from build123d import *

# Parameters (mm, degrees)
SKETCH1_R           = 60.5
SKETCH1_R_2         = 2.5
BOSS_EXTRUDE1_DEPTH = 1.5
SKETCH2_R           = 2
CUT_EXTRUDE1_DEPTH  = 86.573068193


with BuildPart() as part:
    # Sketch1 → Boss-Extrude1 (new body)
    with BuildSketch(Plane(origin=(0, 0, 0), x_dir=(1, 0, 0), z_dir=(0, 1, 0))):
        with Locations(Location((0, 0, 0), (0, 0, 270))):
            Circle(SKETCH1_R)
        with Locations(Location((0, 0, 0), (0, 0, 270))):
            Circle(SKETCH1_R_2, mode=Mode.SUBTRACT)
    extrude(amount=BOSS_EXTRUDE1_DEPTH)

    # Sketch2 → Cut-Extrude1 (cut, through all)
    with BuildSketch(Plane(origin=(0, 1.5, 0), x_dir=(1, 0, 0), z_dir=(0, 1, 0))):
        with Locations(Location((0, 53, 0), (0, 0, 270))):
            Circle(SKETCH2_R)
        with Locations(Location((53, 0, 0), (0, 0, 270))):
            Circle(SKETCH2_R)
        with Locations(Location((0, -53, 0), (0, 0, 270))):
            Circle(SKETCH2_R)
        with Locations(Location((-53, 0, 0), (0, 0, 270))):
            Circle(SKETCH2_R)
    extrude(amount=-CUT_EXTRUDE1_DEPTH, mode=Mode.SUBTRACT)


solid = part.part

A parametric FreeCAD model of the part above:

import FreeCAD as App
import Part
import Sketcher

doc = App.newDocument("Part")
body = doc.addObject("PartDesign::Body", "Body")

# Sketch on XZ plane
sketch1 = body.newObject("Sketcher::SketchObject", "Sketch")
sketch1.AttachmentSupport = (doc.getObject("XZ_Plane"), [""])
sketch1.MapMode = "FlatFace"
sketch1.addGeometry([
    Part.Circle(App.Vector(0, 0, 0), App.Vector(0, 0, 1), 60.5),
    Part.Circle(App.Vector(0, 0, 0), App.Vector(0, 0, 1), 2.5),
], False)
sketch1.addConstraint([
    Sketcher.Constraint("Coincident", 0, 3, -1, 1),
    Sketcher.Constraint("Coincident", 1, 3, -1, 1),
    Sketcher.Constraint("Diameter", 0, 121.0),
    Sketcher.Constraint("Diameter", 1, 5.0),
])
pad1 = body.newObject("PartDesign::Pad", "Pad")
pad1.Profile = sketch1
pad1.Length = 1.5
pad1.Reversed = True

# Sketch on XZ plane
sketch2 = body.newObject("Sketcher::SketchObject", "Sketch001")
sketch2.AttachmentSupport = (doc.getObject("XZ_Plane"), [""])
sketch2.MapMode = "FlatFace"
sketch2.AttachmentOffset = App.Placement(App.Vector(0, 0, -1.5), App.Rotation())
sketch2.addGeometry([
    Part.Circle(App.Vector(0, -53, 0), App.Vector(0, 0, 1), 2),
    Part.Circle(App.Vector(53, 0, 0), App.Vector(0, 0, 1), 2),
    Part.Circle(App.Vector(0, 53, 0), App.Vector(0, 0, 1), 2),
    Part.Circle(App.Vector(-53, 0, 0), App.Vector(0, 0, 1), 2),
], False)
sketch2.addConstraint([
    Sketcher.Constraint("Equal", 0, 1),
    Sketcher.Constraint("Equal", 1, 2),
    Sketcher.Constraint("Equal", 2, 3),
    Sketcher.Constraint("Symmetric", 0, 3, 2, 3, -1, 1),
    Sketcher.Constraint("Symmetric", 1, 3, 3, 3, -1, 1),
    Sketcher.Constraint("PointOnObject", 0, 3, -2),
    Sketcher.Constraint("PointOnObject", 1, 3, -1),
    Sketcher.Constraint("Diameter", 0, 4.0),
    Sketcher.Constraint("DistanceY", 0, 3, -1, 1, 53.0),
    Sketcher.Constraint("DistanceX", -1, 1, 1, 3, 53.0),
])
pocket1 = body.newObject("PartDesign::Pocket", "Pocket")
pocket1.Profile = sketch2
pocket1.Type = "ThroughAll"
pocket1.Reversed = True

doc.recompute()
